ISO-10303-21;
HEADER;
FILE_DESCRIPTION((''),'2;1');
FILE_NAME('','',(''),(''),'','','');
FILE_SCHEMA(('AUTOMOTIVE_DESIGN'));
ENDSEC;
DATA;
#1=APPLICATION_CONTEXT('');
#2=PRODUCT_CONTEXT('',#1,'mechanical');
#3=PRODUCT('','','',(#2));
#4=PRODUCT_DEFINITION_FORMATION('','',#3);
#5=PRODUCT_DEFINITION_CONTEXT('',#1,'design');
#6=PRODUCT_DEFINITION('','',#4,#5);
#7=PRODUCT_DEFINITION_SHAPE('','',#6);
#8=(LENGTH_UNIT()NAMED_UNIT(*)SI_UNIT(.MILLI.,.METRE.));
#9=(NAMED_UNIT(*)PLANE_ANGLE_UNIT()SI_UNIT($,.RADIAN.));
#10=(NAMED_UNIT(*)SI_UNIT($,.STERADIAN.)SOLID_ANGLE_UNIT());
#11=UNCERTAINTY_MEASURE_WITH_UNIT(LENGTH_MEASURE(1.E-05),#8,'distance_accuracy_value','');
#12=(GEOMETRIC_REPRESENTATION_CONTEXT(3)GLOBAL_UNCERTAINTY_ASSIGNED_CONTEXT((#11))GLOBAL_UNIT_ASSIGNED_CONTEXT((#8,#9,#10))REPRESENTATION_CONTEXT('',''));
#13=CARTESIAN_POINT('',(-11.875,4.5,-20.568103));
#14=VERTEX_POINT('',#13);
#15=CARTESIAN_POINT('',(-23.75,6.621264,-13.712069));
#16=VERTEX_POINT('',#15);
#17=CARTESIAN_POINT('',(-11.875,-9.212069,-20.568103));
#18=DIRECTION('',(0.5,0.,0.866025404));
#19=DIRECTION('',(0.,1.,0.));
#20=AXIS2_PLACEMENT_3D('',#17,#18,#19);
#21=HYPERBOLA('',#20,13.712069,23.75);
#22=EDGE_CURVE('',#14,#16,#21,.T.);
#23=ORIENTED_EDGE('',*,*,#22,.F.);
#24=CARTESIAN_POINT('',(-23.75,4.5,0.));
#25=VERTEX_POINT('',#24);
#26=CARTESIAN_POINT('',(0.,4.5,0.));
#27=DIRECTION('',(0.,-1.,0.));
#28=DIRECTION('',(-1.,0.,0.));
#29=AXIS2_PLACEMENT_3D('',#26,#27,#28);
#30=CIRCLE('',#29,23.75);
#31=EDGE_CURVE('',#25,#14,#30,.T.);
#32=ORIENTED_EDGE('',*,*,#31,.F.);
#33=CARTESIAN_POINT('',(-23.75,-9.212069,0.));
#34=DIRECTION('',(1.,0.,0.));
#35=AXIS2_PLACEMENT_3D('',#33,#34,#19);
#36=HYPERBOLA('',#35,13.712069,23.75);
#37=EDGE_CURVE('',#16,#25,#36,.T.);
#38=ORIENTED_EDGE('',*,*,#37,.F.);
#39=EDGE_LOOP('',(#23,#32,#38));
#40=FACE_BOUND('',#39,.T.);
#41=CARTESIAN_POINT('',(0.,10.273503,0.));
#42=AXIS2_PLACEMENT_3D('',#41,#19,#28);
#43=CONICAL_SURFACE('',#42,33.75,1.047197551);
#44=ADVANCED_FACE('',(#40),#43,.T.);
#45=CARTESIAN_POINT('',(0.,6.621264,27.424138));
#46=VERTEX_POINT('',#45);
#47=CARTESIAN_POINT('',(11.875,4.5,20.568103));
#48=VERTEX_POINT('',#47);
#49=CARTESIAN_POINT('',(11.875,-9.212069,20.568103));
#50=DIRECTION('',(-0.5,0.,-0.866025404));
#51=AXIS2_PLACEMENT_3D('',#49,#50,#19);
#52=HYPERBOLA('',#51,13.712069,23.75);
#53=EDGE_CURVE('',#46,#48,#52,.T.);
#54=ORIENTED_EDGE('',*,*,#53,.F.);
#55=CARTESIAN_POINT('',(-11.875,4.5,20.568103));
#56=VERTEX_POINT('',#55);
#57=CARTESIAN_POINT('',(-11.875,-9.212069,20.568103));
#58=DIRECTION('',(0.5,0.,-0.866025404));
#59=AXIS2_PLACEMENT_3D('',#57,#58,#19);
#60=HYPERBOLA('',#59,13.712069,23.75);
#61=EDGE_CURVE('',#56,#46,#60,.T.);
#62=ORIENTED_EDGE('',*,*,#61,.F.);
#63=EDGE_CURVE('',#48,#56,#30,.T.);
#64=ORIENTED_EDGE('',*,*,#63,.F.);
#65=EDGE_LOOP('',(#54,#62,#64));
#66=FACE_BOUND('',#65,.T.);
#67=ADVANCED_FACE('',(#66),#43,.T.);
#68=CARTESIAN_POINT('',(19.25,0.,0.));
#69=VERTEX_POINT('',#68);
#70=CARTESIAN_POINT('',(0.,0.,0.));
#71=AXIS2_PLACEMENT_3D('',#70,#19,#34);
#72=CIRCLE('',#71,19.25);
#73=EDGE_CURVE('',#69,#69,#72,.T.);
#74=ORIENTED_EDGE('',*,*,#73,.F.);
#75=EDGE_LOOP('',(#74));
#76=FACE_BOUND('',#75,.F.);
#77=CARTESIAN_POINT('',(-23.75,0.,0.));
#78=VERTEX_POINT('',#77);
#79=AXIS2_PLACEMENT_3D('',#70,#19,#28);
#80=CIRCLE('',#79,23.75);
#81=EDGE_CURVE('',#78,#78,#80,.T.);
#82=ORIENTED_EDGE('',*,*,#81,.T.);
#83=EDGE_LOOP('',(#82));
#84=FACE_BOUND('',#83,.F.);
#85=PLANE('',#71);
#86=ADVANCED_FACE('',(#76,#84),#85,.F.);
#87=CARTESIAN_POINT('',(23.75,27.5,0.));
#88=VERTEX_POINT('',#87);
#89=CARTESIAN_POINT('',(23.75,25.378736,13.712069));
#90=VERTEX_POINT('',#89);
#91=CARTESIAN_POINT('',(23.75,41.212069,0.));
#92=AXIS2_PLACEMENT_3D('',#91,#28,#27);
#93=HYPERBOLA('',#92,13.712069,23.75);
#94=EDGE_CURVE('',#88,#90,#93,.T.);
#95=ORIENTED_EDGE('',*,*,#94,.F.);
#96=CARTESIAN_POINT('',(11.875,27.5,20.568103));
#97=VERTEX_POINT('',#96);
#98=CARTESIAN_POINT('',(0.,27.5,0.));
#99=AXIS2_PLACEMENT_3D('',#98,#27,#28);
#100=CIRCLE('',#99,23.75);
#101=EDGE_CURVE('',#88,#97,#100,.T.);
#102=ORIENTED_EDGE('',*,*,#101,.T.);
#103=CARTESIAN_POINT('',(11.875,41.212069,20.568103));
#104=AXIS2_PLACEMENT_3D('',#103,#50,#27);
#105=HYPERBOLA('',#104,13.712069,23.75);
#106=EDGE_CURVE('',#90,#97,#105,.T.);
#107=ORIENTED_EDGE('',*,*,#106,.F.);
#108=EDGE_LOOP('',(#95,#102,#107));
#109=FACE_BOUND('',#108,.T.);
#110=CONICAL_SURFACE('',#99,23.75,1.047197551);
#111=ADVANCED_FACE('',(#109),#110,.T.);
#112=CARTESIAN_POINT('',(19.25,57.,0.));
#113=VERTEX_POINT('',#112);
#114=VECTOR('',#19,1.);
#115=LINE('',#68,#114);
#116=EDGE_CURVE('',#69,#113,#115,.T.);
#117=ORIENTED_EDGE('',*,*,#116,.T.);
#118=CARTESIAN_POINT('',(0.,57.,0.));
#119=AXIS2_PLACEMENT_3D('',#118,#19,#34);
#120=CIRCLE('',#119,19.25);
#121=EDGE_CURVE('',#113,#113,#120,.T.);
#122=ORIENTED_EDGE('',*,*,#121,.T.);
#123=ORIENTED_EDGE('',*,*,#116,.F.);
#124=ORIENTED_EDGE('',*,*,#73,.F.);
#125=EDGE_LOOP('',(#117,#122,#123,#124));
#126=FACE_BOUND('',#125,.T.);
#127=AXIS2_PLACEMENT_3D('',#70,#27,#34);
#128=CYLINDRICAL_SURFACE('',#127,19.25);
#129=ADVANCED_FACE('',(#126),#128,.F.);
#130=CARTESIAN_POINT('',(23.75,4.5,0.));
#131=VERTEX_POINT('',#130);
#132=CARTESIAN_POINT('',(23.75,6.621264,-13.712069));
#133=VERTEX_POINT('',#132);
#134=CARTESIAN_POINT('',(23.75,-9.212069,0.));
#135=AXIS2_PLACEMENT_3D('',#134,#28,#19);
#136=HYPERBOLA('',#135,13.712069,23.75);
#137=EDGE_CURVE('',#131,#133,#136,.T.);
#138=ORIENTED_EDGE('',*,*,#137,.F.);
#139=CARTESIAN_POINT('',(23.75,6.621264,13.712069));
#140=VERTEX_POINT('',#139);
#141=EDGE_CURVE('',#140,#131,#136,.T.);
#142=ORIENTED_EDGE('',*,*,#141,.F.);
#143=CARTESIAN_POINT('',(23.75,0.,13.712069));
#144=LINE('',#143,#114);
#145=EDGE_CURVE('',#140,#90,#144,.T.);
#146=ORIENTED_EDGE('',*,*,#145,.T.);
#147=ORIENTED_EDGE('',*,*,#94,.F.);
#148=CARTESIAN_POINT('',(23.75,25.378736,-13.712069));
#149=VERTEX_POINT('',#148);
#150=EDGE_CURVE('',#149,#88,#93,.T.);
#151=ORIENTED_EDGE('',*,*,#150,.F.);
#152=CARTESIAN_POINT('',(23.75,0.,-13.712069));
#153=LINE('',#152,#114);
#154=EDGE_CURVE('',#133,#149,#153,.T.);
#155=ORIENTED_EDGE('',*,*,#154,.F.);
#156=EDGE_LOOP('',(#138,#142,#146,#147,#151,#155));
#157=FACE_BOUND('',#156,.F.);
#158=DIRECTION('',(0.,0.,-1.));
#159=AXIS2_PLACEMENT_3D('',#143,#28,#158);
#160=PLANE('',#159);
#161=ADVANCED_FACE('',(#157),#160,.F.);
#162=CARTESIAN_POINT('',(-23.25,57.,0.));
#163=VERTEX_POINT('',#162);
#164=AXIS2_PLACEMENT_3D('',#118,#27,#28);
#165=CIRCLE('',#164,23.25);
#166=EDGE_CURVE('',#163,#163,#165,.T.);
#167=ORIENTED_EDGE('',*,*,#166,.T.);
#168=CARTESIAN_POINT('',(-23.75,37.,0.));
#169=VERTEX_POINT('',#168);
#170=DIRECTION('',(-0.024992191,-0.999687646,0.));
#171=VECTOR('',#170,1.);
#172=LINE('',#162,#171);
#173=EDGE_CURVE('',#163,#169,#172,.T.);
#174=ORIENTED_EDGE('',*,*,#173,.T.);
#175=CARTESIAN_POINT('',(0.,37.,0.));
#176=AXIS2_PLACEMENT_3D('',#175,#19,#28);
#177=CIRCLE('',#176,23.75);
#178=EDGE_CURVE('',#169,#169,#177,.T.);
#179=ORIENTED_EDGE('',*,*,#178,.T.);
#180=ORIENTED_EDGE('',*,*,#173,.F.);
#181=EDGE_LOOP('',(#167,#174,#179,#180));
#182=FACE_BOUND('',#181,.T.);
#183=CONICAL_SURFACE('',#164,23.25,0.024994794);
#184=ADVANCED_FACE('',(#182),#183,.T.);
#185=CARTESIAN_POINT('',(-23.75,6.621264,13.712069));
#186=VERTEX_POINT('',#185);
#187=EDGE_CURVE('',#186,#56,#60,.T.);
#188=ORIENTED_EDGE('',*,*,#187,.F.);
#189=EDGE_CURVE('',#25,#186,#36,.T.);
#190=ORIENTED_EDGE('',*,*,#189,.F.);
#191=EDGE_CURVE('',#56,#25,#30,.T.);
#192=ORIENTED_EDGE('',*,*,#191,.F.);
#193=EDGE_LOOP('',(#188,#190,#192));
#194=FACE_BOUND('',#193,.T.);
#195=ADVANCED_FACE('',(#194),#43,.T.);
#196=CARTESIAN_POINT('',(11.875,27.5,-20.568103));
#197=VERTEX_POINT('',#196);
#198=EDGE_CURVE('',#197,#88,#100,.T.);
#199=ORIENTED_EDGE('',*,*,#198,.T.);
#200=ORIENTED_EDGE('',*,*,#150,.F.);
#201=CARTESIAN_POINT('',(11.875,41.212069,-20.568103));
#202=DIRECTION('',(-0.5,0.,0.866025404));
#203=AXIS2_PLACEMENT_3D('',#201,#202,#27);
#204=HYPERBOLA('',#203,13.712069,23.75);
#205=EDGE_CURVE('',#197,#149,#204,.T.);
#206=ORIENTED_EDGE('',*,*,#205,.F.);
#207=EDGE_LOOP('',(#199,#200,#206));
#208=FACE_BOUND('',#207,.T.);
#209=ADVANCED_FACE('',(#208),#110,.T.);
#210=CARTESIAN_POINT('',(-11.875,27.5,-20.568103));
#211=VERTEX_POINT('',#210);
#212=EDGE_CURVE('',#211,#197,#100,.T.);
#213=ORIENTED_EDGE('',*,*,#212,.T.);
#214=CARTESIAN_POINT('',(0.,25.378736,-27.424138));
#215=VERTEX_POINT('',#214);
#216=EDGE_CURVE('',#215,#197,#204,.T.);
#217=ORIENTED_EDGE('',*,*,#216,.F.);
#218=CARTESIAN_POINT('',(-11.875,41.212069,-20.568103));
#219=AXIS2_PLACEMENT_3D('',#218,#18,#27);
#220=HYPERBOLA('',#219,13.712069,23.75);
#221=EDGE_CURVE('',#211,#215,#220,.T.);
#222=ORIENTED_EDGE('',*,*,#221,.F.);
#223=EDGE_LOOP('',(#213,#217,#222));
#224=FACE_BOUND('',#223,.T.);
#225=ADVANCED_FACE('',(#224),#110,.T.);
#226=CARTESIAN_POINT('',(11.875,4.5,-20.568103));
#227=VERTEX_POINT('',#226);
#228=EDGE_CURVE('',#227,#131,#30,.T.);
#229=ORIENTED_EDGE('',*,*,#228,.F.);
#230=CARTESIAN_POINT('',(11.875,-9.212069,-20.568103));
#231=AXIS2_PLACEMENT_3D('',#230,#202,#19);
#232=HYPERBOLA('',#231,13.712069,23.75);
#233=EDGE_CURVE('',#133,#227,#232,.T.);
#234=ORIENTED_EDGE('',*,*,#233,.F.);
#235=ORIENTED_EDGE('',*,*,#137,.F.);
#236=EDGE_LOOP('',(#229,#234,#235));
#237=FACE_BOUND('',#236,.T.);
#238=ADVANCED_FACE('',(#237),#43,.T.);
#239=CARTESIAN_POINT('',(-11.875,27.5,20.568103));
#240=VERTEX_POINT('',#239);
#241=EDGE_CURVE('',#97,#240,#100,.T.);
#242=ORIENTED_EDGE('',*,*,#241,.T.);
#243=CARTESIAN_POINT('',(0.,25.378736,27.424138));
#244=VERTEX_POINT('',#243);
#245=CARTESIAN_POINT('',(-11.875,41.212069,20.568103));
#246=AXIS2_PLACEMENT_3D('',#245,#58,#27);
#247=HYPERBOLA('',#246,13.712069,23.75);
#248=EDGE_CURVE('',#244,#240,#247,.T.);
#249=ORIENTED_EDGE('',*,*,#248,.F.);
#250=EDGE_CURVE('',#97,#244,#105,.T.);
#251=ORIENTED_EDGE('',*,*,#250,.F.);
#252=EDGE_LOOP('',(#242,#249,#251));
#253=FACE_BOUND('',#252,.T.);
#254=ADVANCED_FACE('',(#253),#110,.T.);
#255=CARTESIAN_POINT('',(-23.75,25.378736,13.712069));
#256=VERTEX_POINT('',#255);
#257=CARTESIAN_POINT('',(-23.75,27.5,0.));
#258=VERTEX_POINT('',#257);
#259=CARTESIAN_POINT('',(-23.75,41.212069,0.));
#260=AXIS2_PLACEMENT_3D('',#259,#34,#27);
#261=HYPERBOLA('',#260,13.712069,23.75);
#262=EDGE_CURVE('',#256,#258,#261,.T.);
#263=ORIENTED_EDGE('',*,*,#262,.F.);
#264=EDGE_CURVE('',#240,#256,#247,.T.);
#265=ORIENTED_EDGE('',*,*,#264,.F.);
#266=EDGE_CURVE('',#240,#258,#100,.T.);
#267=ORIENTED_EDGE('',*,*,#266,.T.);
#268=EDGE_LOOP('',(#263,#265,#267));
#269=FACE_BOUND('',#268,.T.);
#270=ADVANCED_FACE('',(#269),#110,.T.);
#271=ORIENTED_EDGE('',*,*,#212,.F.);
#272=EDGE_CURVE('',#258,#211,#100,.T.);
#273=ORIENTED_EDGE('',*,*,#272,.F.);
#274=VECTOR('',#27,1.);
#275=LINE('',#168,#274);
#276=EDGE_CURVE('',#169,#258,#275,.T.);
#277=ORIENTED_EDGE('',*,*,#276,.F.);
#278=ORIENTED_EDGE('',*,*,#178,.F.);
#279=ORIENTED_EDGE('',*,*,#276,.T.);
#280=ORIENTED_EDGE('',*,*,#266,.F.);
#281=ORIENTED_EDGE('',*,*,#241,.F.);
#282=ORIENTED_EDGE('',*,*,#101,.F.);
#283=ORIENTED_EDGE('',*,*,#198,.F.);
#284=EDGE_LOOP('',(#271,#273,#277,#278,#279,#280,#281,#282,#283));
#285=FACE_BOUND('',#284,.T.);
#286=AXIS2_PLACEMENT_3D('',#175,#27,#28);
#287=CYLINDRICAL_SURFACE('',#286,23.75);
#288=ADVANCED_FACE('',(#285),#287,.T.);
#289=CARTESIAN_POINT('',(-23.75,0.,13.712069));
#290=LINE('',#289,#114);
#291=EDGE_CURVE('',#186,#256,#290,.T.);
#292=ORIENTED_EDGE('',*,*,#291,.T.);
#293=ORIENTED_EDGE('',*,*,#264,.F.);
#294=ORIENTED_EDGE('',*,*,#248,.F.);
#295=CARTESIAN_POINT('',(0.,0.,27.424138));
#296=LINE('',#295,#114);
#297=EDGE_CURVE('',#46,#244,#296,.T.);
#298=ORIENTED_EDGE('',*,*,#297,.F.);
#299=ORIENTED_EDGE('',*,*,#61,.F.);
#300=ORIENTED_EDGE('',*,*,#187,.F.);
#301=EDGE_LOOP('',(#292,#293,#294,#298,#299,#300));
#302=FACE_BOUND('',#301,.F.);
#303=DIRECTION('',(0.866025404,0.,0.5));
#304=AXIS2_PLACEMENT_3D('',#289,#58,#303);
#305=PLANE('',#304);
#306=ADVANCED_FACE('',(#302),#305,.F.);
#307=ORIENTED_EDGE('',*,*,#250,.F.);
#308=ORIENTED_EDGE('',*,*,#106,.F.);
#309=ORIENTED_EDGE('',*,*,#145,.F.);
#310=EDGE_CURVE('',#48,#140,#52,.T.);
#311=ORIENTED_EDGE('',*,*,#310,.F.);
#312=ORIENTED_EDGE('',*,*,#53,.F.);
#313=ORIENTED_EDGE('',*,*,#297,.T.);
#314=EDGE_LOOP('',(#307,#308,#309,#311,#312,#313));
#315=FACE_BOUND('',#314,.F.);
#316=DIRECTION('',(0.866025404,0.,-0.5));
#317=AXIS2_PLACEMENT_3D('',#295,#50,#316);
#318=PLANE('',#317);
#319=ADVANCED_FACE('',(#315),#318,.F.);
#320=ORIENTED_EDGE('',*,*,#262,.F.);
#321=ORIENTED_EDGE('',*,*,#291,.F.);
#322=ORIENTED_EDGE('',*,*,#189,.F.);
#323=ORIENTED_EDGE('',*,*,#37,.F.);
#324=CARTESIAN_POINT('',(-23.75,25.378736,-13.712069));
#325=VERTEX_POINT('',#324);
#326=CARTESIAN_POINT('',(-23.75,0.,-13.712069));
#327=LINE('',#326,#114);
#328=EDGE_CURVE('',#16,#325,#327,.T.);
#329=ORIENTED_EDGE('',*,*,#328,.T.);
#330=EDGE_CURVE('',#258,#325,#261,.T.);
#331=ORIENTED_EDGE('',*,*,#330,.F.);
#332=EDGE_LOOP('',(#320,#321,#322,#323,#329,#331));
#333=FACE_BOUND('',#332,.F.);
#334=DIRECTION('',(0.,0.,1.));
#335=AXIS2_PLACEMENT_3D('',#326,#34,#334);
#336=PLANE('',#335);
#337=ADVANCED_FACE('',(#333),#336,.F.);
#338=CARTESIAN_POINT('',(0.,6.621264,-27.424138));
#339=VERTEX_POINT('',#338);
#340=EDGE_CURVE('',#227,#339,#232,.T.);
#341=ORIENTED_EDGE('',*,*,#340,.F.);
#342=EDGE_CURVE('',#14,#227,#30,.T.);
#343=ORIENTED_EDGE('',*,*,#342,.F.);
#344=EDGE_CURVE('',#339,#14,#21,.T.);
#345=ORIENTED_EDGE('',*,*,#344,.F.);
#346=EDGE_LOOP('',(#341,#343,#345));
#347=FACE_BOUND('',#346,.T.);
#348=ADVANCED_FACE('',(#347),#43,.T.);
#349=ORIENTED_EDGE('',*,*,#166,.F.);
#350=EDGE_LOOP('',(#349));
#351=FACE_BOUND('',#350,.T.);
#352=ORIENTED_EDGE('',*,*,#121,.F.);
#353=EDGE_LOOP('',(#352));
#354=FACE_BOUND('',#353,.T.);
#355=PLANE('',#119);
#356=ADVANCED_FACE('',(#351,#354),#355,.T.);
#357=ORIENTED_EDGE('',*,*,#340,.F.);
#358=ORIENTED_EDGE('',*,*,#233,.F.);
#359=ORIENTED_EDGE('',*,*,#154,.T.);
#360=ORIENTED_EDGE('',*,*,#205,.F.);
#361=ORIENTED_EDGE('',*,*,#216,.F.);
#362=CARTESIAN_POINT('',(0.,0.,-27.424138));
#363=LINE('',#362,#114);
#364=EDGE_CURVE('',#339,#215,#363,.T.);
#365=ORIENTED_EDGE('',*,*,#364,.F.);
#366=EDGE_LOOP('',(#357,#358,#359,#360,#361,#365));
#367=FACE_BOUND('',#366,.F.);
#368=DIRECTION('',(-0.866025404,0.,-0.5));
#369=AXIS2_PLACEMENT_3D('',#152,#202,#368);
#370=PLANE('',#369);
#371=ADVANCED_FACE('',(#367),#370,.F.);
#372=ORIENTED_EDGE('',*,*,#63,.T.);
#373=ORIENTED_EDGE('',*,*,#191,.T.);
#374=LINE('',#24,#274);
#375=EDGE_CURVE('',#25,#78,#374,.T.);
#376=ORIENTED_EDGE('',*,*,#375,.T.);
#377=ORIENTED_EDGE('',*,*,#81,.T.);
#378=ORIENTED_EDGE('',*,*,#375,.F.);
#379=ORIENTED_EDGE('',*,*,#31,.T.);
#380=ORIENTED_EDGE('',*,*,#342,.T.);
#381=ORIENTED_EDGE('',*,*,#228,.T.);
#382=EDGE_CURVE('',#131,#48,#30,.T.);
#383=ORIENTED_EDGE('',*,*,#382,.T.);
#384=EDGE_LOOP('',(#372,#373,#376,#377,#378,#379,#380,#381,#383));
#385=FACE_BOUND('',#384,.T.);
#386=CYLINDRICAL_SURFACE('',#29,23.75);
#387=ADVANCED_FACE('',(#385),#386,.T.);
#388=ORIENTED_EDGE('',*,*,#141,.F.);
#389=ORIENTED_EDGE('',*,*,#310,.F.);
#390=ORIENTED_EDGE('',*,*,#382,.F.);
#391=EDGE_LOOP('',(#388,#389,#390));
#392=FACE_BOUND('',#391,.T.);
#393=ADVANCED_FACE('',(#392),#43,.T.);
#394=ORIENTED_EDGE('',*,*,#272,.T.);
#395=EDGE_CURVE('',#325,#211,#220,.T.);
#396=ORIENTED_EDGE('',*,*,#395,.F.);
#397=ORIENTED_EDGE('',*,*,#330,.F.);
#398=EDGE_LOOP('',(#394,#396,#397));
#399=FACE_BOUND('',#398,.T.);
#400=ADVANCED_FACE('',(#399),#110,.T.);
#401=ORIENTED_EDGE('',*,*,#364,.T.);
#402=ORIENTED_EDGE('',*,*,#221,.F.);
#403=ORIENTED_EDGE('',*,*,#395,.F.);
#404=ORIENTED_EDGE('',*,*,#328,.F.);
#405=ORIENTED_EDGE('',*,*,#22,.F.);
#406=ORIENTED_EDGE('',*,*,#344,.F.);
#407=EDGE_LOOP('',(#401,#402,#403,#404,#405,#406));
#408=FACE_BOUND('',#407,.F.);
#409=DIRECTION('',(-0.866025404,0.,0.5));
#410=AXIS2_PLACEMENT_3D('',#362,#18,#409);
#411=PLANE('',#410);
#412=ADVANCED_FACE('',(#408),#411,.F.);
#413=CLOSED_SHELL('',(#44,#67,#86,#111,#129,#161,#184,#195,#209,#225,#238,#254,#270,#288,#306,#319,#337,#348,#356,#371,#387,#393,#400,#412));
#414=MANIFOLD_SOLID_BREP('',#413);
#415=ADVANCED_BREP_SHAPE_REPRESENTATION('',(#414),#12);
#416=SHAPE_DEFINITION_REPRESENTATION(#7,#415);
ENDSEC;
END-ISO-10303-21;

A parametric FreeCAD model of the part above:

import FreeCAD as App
import Part
import Sketcher
from FreeCAD import Vector
Q = App.Units.Quantity

doc = App.newDocument("Part")
params = doc.addObject("Spreadsheet::Sheet", "Params")
for row, (alias, value) in enumerate([
    ("sketch1_diameter", "38.5 mm"),
    ("pad1_length", "57 mm"),
    ("sketch2_height", "4.5 mm"),
    ("sketch2_height2", "9.5 mm"),
    ("sketch2_width", "23.25 mm"),
    ("groove_angle", "360 deg"),
], start=1):
    params.set(f"A{row}", alias)
    params.set(f"B{row}", "=" + value)
    params.setAlias(f"B{row}", alias)

body = doc.addObject("PartDesign::Body", "Body")

# Sketch on XZ plane
sketch1 = body.newObject("Sketcher::SketchObject", "Sketch")
sketch1.AttachmentSupport = (doc.getObject("XZ_Plane"), [""])
sketch1.MapMode = "FlatFace"
sketch1.addGeometry([
    Part.LineSegment(Vector(0, -27.424138, 0), Vector(-23.75, -13.712069, 0)),  # 0
    Part.LineSegment(Vector(-23.75, -13.712069, 0), Vector(-23.75, 13.712069, 0)),  # 1
    Part.LineSegment(Vector(-23.75, 13.712069, 0), Vector(0, 27.424138, 0)),  # 2
    Part.LineSegment(Vector(0, 27.424138, 0), Vector(23.75, 13.712069, 0)),  # 3
    Part.LineSegment(Vector(23.75, 13.712069, 0), Vector(23.75, -13.712069, 0)),  # 4
    Part.LineSegment(Vector(23.75, -13.712069, 0), Vector(0, -27.424138, 0)),  # 5
    Part.Circle(Vector(0, 0, 0), Vector(0, 0, 1), 19.25),  # 6
], False)
sketch1.addConstraint([
    Sketcher.Constraint("Coincident", 0, 2, 1, 1),
    Sketcher.Constraint("Coincident", 1, 2, 2, 1),
    Sketcher.Constraint("Coincident", 2, 2, 3, 1),
    Sketcher.Constraint("Coincident", 3, 2, 4, 1),
    Sketcher.Constraint("Coincident", 4, 2, 5, 1),
    Sketcher.Constraint("Coincident", 5, 2, 0, 1),
    Sketcher.Constraint("Vertical", 1),
    Sketcher.Constraint("Vertical", 4),
    Sketcher.Constraint("Coincident", 6, 3, -1, 1),
    Sketcher.Constraint("Symmetric", 0, 2, 3, 2, -1, 1),
    Sketcher.Constraint("Symmetric", 2, 2, 5, 2, -1, 1),
    Sketcher.Constraint("PointOnObject", 2, 2, -2),
    Sketcher.Constraint("Parallel", 2, 5),
    Sketcher.Constraint("Horizontal", 1, 2, 3, 2),
    Sketcher.Constraint("Diameter", 6, 38.5),
    Sketcher.Constraint("Angle", 0, Q("150 deg")),
    Sketcher.Constraint("DistanceX", 1, 2, 3, 2, 47.5),
    Sketcher.Constraint("DistanceY", 1, 1, 1, 2, 27.424138),
])
sketch1.setExpression("Constraints[14]", "Params.sketch1_diameter")
pad1 = body.newObject("PartDesign::Pad", "Pad")
pad1.Profile = sketch1
pad1.setExpression("Length", "Params.pad1_length")
pad1.Reversed = True

# Sketch on XY plane
sketch2 = body.newObject("Sketcher::SketchObject", "Sketch001")
sketch2.AttachmentSupport = (doc.getObject("XY_Plane"), [""])
sketch2.MapMode = "FlatFace"
sketch2.addGeometry([
    Part.LineSegment(Vector(-23.25, 57, 0), Vector(0, 57, 0)),  # 0
    Part.LineSegment(Vector(0, 57, 0), Vector(0, 61.224991, 0)),  # 1
    Part.LineSegment(Vector(0, 61.224991, 0), Vector(-45.690595, 61.224991, 0)),  # 2
    Part.LineSegment(Vector(-45.690595, 61.224991, 0), Vector(-45.690595, 0, 0)),  # 3
    Part.LineSegment(Vector(-45.690595, 0, 0), Vector(-23.75, 0, 0)),  # 4
    Part.LineSegment(Vector(-23.75, 0, 0), Vector(-23.75, 4.5, 0)),  # 5
    Part.LineSegment(Vector(-23.75, 4.5, 0), Vector(-33.75, 10.273503, 0)),  # 6
    Part.LineSegment(Vector(-33.75, 10.273503, 0), Vector(-33.75, 21.726497, 0)),  # 7
    Part.LineSegment(Vector(-33.75, 21.726497, 0), Vector(-23.75, 27.5, 0)),  # 8
    Part.LineSegment(Vector(-23.75, 27.5, 0), Vector(-23.75, 37, 0)),  # 9
    Part.LineSegment(Vector(-23.75, 37, 0), Vector(-23.25, 57, 0)),  # 10
], False)
sketch2.addConstraint([
    Sketcher.Constraint("Coincident", 0, 2, 1, 1),
    Sketcher.Constraint("Coincident", 1, 2, 2, 1),
    Sketcher.Constraint("Coincident", 2, 2, 3, 1),
    Sketcher.Constraint("Coincident", 3, 2, 4, 1),
    Sketcher.Constraint("Coincident", 4, 2, 5, 1),
    Sketcher.Constraint("Coincident", 5, 2, 6, 1),
    Sketcher.Constraint("Coincident", 6, 2, 7, 1),
    Sketcher.Constraint("Coincident", 7, 2, 8, 1),
    Sketcher.Constraint("Coincident", 8, 2, 9, 1),
    Sketcher.Constraint("Coincident", 9, 2, 10, 1),
    Sketcher.Constraint("Coincident", 10, 2, 0, 1),
    Sketcher.Constraint("Horizontal", 0),
    Sketcher.Constraint("Vertical", 1),
    Sketcher.Constraint("Horizontal", 2),
    Sketcher.Constraint("Vertical", 3),
    Sketcher.Constraint("Horizontal", 4),
    Sketcher.Constraint("Vertical", 5),
    Sketcher.Constraint("Vertical", 7),
    Sketcher.Constraint("Vertical", 9),
    Sketcher.Constraint("PointOnObject", 0, 2, -2),
    Sketcher.Constraint("PointOnObject", 3, 2, -1),
    Sketcher.Constraint("Vertical", 5, 2, 8, 2),
    Sketcher.Constraint("Equal", 6, 8),
    Sketcher.Constraint("Angle", 6, Q("150 deg")),
    Sketcher.Constraint("DistanceY", 5, 1, 5, 2, 4.5),
    Sketcher.Constraint("DistanceY", 9, 1, 9, 2, 9.5),
    Sketcher.Constraint("DistanceY", -1, 1, 0, 2, 57.0),
    Sketcher.Constraint("DistanceY", -1, 1, 9, 2, 37.0),
    Sketcher.Constraint("DistanceX", 6, 2, 5, 2, 10.0),
    Sketcher.Constraint("DistanceX", 0, 1, 0, 2, 23.25),
    Sketcher.Constraint("DistanceX", 9, 2, 10, 2, 0.5),
    Sketcher.Constraint("DistanceY", 1, 1, 1, 2, 4.224991),
    Sketcher.Constraint("DistanceX", 2, 2, 2, 1, 45.690595),
])
sketch2.setExpression("Constraints[24]", "Params.sketch2_height")
sketch2.setExpression("Constraints[25]", "Params.sketch2_height2")
sketch2.setExpression("Constraints[29]", "Params.sketch2_width")
groove = body.newObject("PartDesign::Groove", "Groove")
groove.Profile = sketch2
groove.ReferenceAxis = (sketch2, ["V_Axis"])
groove.setExpression("Angle", "Params.groove_angle")

doc.recompute()
